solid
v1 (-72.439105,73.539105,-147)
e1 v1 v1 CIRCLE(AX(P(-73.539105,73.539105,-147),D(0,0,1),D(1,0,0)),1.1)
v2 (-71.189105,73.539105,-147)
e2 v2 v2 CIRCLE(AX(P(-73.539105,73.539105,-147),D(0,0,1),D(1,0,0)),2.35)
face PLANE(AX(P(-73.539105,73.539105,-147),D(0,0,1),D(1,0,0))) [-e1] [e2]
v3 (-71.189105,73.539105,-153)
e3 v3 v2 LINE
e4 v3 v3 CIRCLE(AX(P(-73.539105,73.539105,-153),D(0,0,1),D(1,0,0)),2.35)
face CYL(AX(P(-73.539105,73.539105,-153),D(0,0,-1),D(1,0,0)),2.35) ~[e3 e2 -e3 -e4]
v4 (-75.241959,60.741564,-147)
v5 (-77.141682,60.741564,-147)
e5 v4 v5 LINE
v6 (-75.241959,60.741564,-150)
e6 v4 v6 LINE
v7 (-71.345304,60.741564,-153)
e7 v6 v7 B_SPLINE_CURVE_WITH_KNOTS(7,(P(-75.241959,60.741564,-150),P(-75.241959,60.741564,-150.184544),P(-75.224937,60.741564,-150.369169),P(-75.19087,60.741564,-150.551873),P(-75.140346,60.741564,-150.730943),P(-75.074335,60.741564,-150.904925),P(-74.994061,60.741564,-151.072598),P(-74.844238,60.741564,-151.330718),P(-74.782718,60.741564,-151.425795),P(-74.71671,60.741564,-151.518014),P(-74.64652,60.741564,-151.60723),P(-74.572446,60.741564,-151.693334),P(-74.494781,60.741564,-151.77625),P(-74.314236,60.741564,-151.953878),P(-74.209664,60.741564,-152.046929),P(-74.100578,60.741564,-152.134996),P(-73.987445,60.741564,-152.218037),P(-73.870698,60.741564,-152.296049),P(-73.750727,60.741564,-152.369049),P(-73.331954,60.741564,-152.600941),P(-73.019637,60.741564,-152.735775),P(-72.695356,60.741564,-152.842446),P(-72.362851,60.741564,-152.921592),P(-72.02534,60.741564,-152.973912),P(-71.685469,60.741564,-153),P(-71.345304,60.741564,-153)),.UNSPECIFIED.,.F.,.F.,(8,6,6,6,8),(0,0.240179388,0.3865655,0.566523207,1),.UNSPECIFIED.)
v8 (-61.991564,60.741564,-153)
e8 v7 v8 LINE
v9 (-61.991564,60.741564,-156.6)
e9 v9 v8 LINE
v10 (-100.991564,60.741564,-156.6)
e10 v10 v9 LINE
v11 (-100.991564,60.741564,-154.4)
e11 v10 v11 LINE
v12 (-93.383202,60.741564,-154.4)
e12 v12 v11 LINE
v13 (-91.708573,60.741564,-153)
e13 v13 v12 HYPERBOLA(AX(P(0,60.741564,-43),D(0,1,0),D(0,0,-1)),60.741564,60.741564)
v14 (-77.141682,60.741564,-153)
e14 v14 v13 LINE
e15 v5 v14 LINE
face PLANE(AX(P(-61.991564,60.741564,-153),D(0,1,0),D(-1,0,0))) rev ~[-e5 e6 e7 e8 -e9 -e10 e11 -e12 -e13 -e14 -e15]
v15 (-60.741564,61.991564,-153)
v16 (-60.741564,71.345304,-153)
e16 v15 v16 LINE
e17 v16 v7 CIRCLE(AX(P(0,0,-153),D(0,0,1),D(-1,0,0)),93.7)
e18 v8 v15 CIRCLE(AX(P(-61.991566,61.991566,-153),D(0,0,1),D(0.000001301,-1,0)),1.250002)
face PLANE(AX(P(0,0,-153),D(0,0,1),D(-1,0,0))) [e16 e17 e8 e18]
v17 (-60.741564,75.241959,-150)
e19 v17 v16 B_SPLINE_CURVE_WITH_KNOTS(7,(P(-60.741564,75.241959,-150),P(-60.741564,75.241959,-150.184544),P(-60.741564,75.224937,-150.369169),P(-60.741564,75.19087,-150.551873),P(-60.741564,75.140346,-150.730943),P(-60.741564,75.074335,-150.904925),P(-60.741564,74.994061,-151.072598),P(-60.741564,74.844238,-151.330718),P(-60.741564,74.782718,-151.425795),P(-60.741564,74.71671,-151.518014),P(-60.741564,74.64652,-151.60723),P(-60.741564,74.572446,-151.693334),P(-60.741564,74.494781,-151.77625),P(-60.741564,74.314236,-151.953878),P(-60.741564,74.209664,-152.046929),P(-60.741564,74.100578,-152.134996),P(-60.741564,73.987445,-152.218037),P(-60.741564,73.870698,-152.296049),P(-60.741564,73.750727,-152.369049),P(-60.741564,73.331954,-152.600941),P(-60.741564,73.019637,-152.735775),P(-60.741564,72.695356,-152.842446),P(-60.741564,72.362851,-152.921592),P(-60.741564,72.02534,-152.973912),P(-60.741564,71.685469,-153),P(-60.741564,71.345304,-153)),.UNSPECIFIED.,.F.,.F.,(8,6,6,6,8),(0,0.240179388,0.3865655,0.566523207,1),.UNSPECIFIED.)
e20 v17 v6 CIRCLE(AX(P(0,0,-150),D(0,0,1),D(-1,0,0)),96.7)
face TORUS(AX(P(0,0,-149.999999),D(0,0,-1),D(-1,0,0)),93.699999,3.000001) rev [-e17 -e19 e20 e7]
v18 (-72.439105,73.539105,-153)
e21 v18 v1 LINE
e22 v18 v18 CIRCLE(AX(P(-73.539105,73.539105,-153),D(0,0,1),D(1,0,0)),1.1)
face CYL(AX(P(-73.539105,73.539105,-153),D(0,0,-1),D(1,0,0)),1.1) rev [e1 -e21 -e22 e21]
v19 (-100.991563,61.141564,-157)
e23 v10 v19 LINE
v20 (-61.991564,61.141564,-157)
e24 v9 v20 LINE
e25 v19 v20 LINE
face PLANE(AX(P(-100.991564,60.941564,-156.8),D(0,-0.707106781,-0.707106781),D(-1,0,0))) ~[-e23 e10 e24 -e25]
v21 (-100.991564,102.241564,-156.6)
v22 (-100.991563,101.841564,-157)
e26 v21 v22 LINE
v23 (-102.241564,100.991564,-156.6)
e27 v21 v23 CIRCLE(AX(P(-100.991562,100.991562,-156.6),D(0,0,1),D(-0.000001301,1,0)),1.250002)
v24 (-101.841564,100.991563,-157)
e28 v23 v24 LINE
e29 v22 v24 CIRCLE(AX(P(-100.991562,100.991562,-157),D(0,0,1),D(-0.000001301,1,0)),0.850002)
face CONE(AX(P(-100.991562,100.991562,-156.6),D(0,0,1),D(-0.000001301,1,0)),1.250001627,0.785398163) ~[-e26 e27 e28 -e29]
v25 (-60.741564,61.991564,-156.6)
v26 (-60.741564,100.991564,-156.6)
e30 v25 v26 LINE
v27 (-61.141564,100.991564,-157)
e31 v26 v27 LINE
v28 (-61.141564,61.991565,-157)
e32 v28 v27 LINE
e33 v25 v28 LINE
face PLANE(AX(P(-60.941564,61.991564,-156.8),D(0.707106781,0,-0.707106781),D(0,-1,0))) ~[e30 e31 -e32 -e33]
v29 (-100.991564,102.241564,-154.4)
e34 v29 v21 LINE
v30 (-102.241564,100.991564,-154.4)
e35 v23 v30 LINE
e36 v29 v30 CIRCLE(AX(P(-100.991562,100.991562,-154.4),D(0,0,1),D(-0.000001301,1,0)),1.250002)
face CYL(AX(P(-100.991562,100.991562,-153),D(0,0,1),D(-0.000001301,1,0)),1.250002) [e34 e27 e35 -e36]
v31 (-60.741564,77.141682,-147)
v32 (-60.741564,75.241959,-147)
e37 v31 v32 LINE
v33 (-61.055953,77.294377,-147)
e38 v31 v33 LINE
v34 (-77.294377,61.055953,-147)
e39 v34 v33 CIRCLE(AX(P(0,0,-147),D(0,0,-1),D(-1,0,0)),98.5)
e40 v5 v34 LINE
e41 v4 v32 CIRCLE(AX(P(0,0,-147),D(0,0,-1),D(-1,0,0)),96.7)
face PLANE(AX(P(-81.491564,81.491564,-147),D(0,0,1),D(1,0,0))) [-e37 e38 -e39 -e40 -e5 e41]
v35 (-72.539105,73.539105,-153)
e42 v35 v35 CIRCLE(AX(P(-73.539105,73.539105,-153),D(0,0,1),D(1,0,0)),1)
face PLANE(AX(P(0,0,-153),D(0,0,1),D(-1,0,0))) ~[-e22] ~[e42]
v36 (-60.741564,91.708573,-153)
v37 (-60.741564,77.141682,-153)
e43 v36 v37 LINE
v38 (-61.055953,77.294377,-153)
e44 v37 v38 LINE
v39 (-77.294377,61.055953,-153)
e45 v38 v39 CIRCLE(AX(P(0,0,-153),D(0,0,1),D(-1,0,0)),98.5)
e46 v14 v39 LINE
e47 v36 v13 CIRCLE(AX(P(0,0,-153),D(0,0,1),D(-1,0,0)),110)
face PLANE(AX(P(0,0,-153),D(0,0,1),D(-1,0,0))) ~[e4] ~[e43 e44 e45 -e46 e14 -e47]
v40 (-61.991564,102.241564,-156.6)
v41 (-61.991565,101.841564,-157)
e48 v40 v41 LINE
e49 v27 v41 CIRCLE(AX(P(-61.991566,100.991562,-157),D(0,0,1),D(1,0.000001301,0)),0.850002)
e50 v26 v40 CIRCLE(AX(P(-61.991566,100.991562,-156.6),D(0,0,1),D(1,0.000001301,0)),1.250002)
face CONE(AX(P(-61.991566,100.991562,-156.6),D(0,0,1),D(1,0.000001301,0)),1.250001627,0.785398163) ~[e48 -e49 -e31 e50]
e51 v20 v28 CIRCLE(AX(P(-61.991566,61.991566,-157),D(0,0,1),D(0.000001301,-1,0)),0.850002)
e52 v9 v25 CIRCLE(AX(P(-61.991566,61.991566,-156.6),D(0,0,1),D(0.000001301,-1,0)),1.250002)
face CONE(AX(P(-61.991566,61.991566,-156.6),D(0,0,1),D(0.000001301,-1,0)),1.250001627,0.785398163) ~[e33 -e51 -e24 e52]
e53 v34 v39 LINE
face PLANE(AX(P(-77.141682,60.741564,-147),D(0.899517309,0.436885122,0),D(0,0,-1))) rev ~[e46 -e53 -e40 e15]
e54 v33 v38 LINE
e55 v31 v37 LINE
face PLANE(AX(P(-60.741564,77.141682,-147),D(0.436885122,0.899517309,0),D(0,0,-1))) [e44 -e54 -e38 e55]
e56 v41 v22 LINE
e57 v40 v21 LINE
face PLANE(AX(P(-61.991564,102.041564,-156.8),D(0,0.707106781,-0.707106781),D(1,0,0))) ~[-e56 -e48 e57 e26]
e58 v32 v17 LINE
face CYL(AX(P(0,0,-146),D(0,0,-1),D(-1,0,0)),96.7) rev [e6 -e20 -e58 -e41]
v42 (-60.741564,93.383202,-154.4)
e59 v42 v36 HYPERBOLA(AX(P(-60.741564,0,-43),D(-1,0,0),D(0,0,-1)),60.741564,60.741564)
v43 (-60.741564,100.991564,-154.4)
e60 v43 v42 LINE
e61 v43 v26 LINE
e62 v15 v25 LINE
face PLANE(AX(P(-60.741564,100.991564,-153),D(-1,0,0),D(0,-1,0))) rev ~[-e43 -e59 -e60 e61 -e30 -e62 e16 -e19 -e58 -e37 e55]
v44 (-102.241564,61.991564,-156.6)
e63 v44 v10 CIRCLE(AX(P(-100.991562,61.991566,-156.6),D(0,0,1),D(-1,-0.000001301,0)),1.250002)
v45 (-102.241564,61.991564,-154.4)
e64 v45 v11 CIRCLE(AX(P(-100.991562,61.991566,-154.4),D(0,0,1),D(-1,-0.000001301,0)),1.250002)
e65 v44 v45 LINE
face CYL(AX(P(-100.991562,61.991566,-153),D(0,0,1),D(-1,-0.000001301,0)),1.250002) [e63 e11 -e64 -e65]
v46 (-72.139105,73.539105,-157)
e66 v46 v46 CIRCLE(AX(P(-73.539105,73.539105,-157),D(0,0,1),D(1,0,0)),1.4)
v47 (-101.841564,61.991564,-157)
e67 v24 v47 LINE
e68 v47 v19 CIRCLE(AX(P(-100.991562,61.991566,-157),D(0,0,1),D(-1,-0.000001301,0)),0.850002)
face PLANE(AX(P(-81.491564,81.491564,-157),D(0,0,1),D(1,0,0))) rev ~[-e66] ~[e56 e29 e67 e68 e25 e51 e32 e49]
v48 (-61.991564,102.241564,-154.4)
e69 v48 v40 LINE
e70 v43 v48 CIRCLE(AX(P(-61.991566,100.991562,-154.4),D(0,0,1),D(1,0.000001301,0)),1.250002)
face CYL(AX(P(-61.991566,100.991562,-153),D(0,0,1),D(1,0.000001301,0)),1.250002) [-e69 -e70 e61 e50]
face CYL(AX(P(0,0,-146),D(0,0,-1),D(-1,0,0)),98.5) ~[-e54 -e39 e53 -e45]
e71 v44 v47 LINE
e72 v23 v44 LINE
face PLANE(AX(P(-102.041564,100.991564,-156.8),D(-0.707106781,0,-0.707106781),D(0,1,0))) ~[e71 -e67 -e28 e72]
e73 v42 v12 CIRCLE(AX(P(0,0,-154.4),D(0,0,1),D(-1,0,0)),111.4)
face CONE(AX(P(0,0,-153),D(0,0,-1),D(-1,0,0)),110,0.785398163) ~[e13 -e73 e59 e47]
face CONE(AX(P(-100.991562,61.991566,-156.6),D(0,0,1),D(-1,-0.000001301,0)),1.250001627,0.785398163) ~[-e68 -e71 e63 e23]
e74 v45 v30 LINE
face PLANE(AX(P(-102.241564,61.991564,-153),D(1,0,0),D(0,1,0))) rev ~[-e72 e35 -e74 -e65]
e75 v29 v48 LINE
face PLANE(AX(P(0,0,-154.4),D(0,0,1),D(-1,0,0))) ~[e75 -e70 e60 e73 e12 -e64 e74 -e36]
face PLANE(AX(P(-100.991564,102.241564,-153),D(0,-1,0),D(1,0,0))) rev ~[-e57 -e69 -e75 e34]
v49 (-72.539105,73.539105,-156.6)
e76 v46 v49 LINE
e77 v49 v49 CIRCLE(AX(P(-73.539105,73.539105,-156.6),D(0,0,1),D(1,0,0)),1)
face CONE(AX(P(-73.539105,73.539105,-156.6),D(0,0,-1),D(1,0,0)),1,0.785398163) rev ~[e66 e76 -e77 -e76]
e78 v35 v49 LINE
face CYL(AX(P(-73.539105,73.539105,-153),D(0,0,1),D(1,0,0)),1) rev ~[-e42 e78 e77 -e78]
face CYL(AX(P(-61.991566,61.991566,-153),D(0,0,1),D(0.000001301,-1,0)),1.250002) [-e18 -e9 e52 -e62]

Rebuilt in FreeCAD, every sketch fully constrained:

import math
import FreeCAD as App
import Part
import Sketcher

V = App.Vector


def edges_at(feature, points):
    """Names of the edges that pass closest to the given points."""
    edges = feature.Shape.Edges
    near = lambda p: min(range(len(edges)), key=lambda i: edges[i].distToShape(Part.Vertex(*p))[0])
    return sorted({f"Edge{near(p) + 1}" for p in points})

doc = App.newDocument("Part")
body = doc.addObject("PartDesign::Body", "Body")

sketch1 = doc.addObject("Sketcher::SketchObject", "Sketch")
body.addObject(sketch1)
sketch1.AttachmentSupport = (doc.XY_Plane, [""])
sketch1.MapMode = "FlatFace"
sketch1.addGeometry([
    Part.ArcOfCircle(Part.Circle(V(-101, 101, 0), V(0, 0, 1), 1.3), math.radians(90), math.radians(180)),
    Part.LineSegment(V(-102.2, 101, 0), V(-102.2, 62, 0)),
    Part.ArcOfCircle(Part.Circle(V(-101, 62, 0), V(0, 0, 1), 1.3), math.radians(-180), math.radians(-90)),
    Part.LineSegment(V(-101, 60.7, 0), V(-62, 60.7, 0)),
    Part.ArcOfCircle(Part.Circle(V(-62, 62, 0), V(0, 0, 1), 1.3), math.radians(-90), math.radians(0)),
    Part.LineSegment(V(-60.7, 62, 0), V(-60.7, 101, 0)),
    Part.ArcOfCircle(Part.Circle(V(-62, 101, 0), V(0, 0, 1), 1.3), math.radians(0), math.radians(90)),
    Part.LineSegment(V(-62, 102.2, 0), V(-101, 102.2, 0)),
    Part.Circle(V(-73.5, 73.5, 0), V(0, 0, 1), 1),
], False)
sketch1.addConstraint([
    Sketcher.Constraint("Tangent", 0, 2, 1, 1),
    Sketcher.Constraint("Tangent", 1, 2, 2, 1),
    Sketcher.Constraint("Tangent", 2, 2, 3, 1),
    Sketcher.Constraint("Tangent", 3, 2, 4, 1),
    Sketcher.Constraint("Tangent", 4, 2, 5, 1),
    Sketcher.Constraint("Tangent", 5, 2, 6, 1),
    Sketcher.Constraint("Tangent", 6, 2, 7, 1),
    Sketcher.Constraint("Tangent", 7, 2, 0, 1),
    Sketcher.Constraint("Vertical", 1),
    Sketcher.Constraint("Horizontal", 3),
    Sketcher.Constraint("Vertical", 5),
    Sketcher.Constraint("Horizontal", 7),
    Sketcher.Constraint("Equal", 0, 2),
    Sketcher.Constraint("Equal", 2, 4),
    Sketcher.Constraint("Equal", 4, 6),
    Sketcher.Constraint("Equal", 7, 1),
    Sketcher.Constraint("Diameter", 8, 2.0),
    Sketcher.Constraint("DistanceX", 3, 1, 3, 2, 39.0),
    Sketcher.Constraint("Radius", 0, 1.250002),
    Sketcher.Constraint("DistanceX", 8, 3, 4, 3, 11.547539),
    Sketcher.Constraint("DistanceY", 4, 3, 8, 3, 11.547539),
    Sketcher.Constraint("DistanceX", 0, 3, -1, 1, 100.991562),
    Sketcher.Constraint("DistanceY", -1, 1, 0, 3, 100.991562),
])
pad1 = doc.addObject("PartDesign::Pad", "Pad")
body.addObject(pad1)
pad1.Profile = sketch1
pad1.Type = "TwoLengths"
pad1.Length = 6
pad1.Length2 = 4

sketch2 = doc.addObject("Sketcher::SketchObject", "Sketch001")
body.addObject(sketch2)
sketch2.AttachmentSupport = (doc.XZ_Plane, [""])
sketch2.MapMode = "FlatFace"
sketch2.addGeometry([
    Part.LineSegment(V(0, 7, 0), V(-96.7, 7, 0)),
    Part.LineSegment(V(-96.7, 7, 0), V(-96.7, 3, 0)),
    Part.ArcOfCircle(Part.Circle(V(-93.7, 3, 0), V(0, 0, 1), 3), math.radians(-180), math.radians(-90)),
    Part.LineSegment(V(-93.7, 0, 0), V(0, 0, 0)),
    Part.LineSegment(V(0, 0, 0), V(0, 7, 0)),
    Part.LineSegment(V(-98.5, 7, 0), V(-165, 7, 0)),
    Part.LineSegment(V(-165, 7, 0), V(-165, 0, 0)),
    Part.LineSegment(V(-165, 0, 0), V(-145.5, 0, 0)),
    Part.LineSegment(V(-145.5, 0, 0), V(-144.1, -1.4, 0)),
    Part.LineSegment(V(-144.1, -1.4, 0), V(-111.4, -1.4, 0)),
    Part.LineSegment(V(-111.4, -1.4, 0), V(-110, 0, 0)),
    Part.LineSegment(V(-110, 0, 0), V(-98.5, 0, 0)),
    Part.LineSegment(V(-98.5, 0, 0), V(-98.5, 7, 0)),
], False)
sketch2.addConstraint([
    Sketcher.Constraint("Coincident", 0, 2, 1, 1),
    Sketcher.Constraint("Tangent", 1, 2, 2, 1),
    Sketcher.Constraint("Tangent", 2, 2, 3, 1),
    Sketcher.Constraint("Coincident", 3, 2, 4, 1),
    Sketcher.Constraint("Coincident", 4, 2, 0, 1),
    Sketcher.Constraint("Coincident", 5, 2, 6, 1),
    Sketcher.Constraint("Coincident", 6, 2, 7, 1),
    Sketcher.Constraint("Coincident", 7, 2, 8, 1),
    Sketcher.Constraint("Coincident", 8, 2, 9, 1),
    Sketcher.Constraint("Coincident", 9, 2, 10, 1),
    Sketcher.Constraint("Coincident", 10, 2, 11, 1),
    Sketcher.Constraint("Coincident", 11, 2, 12, 1),
    Sketcher.Constraint("Coincident", 12, 2, 5, 1),
    Sketcher.Constraint("Horizontal", 0),
    Sketcher.Constraint("Vertical", 1),
    Sketcher.Constraint("Horizontal", 3),
    Sketcher.Constraint("Vertical", 4),
    Sketcher.Constraint("Horizontal", 5),
    Sketcher.Constraint("Vertical", 6),
    Sketcher.Constraint("Horizontal", 7),
    Sketcher.Constraint("Horizontal", 9),
    Sketcher.Constraint("Horizontal", 11),
    Sketcher.Constraint("Vertical", 12),
    Sketcher.Constraint("Coincident", 3, 2, -1, 1),
    Sketcher.Constraint("PointOnObject", 6, 2, -1),
    Sketcher.Constraint("PointOnObject", 10, 2, -1),
    Sketcher.Constraint("Perpendicular", 8, 10),
    Sketcher.Constraint("Horizontal", 4, 2, 5, 2),
    Sketcher.Constraint("Equal", 8, 10),
    Sketcher.Constraint("Radius", 2, 3.000001),
    Sketcher.Constraint("DistanceY", 1, 2, 1, 1, 4.0),
    Sketcher.Constraint("DistanceX", 0, 2, 0, 1, 96.7),
    Sketcher.Constraint("DistanceX", 5, 2, 5, 1, 66.5),
    Sketcher.Constraint("DistanceX", 7, 1, 7, 2, 19.5),
    Sketcher.Constraint("DistanceX", 9, 1, 9, 2, 32.7),
    Sketcher.Constraint("DistanceX", 11, 1, 11, 2, 11.5),
    Sketcher.Constraint("DistanceX", 5, 2, -1, 1, 165.0),
])
groove = doc.addObject("PartDesign::Groove", "Groove")
body.addObject(groove)
groove.Profile = sketch2
groove.ReferenceAxis = (sketch2, ["V_Axis"])
groove.Angle = 360

sketch3 = doc.addObject("Sketcher::SketchObject", "Sketch002")
body.addObject(sketch3)
sketch3.AttachmentSupport = (doc.XY_Plane, [""])
sketch3.MapMode = "FlatFace"
sketch3.addGeometry([
    Part.Circle(V(-73.5, 73.5, 0), V(0, 0, 1), 2.4),
    Part.Circle(V(-73.5, 73.5, 0), V(0, 0, 1), 1.1),
], False)
sketch3.addConstraint([
    Sketcher.Constraint("Coincident", 1, 3, 0, 3),
    Sketcher.Constraint("Diameter", 0, 4.7),
    Sketcher.Constraint("Diameter", 1, 2.2),
    Sketcher.Constraint("DistanceX", 0, 3, -1, 1, 73.539105),
    Sketcher.Constraint("DistanceY", -1, 1, 0, 3, 73.539105),
])
pad2 = doc.addObject("PartDesign::Pad", "Pad001")
body.addObject(pad2)
pad2.Profile = sketch3
pad2.Length = 6
doc.recompute()

chamfer = doc.addObject("PartDesign::Chamfer", "Chamfer")
body.addObject(chamfer)
chamfer.Base = (pad2, edges_at(pad2, [
    (-101.875, 101.875, -4),
    (-102.242, 81.492, -4),
    (-101.875, 61.108, -4),
    (-81.492, 60.742, -4),
    (-61.108, 61.108, -4),
    (-60.742, 81.492, -4),
    (-61.108, 101.875, -4),
    (-81.492, 102.242, -4),
    (-74.539, 73.539, -4),
    (-77.542, 60.742, 3),
    (-60.742, 77.542, 3),
]))
chamfer.Size = 0.4
body2 = doc.addObject("PartDesign::Body", "Body001")
doc.recompute()

body.Placement = App.Placement(V(0, 0, -153), App.Rotation(V(0, 0, 1), 0))
boolean = doc.addObject("PartDesign::Boolean", "Boolean")
body2.addObject(boolean)
boolean.Type = "Fuse"
boolean.addObjects([body])

doc.recompute()
